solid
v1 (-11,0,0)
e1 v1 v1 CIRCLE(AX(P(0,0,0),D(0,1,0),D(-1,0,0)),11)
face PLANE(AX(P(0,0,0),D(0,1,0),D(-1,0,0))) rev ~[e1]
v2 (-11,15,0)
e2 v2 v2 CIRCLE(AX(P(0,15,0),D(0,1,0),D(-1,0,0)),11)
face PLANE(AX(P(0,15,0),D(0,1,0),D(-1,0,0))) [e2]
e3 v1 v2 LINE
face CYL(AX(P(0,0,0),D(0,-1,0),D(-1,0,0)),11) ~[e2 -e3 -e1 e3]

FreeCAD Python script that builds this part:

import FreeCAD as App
import Part
import Sketcher
from FreeCAD import Vector

doc = App.newDocument("Part")
params = doc.addObject("Spreadsheet::Sheet", "Params")
for row, (alias, value) in enumerate([
    ("sketch1_diameter", "22 mm"),
    ("pad1_length", "15 mm"),
], start=1):
    params.set(f"A{row}", alias)
    params.set(f"B{row}", "=" + value)
    params.setAlias(f"B{row}", alias)

body = doc.addObject("PartDesign::Body", "Body")

# Sketch on XZ plane
sketch1 = doc.addObject("Sketcher::SketchObject", "Sketch")
body.addObject(sketch1)
sketch1.AttachmentSupport = (doc.XZ_Plane, [""])
sketch1.MapMode = "FlatFace"
sketch1.addGeometry(Part.Circle(Vector(0, 0, 0), Vector(0, 0, 1), 11), False)
sketch1.addConstraint([
    Sketcher.Constraint("Coincident", 0, 3, -1, 1),
    Sketcher.Constraint("Diameter", 0, 22.0),
])
sketch1.setExpression("Constraints[1]", "Params.sketch1_diameter")
pad1 = doc.addObject("PartDesign::Pad", "Pad")
body.addObject(pad1)
pad1.Profile = sketch1
pad1.setExpression("Length", "Params.pad1_length")
pad1.Reversed = True

doc.recompute()
